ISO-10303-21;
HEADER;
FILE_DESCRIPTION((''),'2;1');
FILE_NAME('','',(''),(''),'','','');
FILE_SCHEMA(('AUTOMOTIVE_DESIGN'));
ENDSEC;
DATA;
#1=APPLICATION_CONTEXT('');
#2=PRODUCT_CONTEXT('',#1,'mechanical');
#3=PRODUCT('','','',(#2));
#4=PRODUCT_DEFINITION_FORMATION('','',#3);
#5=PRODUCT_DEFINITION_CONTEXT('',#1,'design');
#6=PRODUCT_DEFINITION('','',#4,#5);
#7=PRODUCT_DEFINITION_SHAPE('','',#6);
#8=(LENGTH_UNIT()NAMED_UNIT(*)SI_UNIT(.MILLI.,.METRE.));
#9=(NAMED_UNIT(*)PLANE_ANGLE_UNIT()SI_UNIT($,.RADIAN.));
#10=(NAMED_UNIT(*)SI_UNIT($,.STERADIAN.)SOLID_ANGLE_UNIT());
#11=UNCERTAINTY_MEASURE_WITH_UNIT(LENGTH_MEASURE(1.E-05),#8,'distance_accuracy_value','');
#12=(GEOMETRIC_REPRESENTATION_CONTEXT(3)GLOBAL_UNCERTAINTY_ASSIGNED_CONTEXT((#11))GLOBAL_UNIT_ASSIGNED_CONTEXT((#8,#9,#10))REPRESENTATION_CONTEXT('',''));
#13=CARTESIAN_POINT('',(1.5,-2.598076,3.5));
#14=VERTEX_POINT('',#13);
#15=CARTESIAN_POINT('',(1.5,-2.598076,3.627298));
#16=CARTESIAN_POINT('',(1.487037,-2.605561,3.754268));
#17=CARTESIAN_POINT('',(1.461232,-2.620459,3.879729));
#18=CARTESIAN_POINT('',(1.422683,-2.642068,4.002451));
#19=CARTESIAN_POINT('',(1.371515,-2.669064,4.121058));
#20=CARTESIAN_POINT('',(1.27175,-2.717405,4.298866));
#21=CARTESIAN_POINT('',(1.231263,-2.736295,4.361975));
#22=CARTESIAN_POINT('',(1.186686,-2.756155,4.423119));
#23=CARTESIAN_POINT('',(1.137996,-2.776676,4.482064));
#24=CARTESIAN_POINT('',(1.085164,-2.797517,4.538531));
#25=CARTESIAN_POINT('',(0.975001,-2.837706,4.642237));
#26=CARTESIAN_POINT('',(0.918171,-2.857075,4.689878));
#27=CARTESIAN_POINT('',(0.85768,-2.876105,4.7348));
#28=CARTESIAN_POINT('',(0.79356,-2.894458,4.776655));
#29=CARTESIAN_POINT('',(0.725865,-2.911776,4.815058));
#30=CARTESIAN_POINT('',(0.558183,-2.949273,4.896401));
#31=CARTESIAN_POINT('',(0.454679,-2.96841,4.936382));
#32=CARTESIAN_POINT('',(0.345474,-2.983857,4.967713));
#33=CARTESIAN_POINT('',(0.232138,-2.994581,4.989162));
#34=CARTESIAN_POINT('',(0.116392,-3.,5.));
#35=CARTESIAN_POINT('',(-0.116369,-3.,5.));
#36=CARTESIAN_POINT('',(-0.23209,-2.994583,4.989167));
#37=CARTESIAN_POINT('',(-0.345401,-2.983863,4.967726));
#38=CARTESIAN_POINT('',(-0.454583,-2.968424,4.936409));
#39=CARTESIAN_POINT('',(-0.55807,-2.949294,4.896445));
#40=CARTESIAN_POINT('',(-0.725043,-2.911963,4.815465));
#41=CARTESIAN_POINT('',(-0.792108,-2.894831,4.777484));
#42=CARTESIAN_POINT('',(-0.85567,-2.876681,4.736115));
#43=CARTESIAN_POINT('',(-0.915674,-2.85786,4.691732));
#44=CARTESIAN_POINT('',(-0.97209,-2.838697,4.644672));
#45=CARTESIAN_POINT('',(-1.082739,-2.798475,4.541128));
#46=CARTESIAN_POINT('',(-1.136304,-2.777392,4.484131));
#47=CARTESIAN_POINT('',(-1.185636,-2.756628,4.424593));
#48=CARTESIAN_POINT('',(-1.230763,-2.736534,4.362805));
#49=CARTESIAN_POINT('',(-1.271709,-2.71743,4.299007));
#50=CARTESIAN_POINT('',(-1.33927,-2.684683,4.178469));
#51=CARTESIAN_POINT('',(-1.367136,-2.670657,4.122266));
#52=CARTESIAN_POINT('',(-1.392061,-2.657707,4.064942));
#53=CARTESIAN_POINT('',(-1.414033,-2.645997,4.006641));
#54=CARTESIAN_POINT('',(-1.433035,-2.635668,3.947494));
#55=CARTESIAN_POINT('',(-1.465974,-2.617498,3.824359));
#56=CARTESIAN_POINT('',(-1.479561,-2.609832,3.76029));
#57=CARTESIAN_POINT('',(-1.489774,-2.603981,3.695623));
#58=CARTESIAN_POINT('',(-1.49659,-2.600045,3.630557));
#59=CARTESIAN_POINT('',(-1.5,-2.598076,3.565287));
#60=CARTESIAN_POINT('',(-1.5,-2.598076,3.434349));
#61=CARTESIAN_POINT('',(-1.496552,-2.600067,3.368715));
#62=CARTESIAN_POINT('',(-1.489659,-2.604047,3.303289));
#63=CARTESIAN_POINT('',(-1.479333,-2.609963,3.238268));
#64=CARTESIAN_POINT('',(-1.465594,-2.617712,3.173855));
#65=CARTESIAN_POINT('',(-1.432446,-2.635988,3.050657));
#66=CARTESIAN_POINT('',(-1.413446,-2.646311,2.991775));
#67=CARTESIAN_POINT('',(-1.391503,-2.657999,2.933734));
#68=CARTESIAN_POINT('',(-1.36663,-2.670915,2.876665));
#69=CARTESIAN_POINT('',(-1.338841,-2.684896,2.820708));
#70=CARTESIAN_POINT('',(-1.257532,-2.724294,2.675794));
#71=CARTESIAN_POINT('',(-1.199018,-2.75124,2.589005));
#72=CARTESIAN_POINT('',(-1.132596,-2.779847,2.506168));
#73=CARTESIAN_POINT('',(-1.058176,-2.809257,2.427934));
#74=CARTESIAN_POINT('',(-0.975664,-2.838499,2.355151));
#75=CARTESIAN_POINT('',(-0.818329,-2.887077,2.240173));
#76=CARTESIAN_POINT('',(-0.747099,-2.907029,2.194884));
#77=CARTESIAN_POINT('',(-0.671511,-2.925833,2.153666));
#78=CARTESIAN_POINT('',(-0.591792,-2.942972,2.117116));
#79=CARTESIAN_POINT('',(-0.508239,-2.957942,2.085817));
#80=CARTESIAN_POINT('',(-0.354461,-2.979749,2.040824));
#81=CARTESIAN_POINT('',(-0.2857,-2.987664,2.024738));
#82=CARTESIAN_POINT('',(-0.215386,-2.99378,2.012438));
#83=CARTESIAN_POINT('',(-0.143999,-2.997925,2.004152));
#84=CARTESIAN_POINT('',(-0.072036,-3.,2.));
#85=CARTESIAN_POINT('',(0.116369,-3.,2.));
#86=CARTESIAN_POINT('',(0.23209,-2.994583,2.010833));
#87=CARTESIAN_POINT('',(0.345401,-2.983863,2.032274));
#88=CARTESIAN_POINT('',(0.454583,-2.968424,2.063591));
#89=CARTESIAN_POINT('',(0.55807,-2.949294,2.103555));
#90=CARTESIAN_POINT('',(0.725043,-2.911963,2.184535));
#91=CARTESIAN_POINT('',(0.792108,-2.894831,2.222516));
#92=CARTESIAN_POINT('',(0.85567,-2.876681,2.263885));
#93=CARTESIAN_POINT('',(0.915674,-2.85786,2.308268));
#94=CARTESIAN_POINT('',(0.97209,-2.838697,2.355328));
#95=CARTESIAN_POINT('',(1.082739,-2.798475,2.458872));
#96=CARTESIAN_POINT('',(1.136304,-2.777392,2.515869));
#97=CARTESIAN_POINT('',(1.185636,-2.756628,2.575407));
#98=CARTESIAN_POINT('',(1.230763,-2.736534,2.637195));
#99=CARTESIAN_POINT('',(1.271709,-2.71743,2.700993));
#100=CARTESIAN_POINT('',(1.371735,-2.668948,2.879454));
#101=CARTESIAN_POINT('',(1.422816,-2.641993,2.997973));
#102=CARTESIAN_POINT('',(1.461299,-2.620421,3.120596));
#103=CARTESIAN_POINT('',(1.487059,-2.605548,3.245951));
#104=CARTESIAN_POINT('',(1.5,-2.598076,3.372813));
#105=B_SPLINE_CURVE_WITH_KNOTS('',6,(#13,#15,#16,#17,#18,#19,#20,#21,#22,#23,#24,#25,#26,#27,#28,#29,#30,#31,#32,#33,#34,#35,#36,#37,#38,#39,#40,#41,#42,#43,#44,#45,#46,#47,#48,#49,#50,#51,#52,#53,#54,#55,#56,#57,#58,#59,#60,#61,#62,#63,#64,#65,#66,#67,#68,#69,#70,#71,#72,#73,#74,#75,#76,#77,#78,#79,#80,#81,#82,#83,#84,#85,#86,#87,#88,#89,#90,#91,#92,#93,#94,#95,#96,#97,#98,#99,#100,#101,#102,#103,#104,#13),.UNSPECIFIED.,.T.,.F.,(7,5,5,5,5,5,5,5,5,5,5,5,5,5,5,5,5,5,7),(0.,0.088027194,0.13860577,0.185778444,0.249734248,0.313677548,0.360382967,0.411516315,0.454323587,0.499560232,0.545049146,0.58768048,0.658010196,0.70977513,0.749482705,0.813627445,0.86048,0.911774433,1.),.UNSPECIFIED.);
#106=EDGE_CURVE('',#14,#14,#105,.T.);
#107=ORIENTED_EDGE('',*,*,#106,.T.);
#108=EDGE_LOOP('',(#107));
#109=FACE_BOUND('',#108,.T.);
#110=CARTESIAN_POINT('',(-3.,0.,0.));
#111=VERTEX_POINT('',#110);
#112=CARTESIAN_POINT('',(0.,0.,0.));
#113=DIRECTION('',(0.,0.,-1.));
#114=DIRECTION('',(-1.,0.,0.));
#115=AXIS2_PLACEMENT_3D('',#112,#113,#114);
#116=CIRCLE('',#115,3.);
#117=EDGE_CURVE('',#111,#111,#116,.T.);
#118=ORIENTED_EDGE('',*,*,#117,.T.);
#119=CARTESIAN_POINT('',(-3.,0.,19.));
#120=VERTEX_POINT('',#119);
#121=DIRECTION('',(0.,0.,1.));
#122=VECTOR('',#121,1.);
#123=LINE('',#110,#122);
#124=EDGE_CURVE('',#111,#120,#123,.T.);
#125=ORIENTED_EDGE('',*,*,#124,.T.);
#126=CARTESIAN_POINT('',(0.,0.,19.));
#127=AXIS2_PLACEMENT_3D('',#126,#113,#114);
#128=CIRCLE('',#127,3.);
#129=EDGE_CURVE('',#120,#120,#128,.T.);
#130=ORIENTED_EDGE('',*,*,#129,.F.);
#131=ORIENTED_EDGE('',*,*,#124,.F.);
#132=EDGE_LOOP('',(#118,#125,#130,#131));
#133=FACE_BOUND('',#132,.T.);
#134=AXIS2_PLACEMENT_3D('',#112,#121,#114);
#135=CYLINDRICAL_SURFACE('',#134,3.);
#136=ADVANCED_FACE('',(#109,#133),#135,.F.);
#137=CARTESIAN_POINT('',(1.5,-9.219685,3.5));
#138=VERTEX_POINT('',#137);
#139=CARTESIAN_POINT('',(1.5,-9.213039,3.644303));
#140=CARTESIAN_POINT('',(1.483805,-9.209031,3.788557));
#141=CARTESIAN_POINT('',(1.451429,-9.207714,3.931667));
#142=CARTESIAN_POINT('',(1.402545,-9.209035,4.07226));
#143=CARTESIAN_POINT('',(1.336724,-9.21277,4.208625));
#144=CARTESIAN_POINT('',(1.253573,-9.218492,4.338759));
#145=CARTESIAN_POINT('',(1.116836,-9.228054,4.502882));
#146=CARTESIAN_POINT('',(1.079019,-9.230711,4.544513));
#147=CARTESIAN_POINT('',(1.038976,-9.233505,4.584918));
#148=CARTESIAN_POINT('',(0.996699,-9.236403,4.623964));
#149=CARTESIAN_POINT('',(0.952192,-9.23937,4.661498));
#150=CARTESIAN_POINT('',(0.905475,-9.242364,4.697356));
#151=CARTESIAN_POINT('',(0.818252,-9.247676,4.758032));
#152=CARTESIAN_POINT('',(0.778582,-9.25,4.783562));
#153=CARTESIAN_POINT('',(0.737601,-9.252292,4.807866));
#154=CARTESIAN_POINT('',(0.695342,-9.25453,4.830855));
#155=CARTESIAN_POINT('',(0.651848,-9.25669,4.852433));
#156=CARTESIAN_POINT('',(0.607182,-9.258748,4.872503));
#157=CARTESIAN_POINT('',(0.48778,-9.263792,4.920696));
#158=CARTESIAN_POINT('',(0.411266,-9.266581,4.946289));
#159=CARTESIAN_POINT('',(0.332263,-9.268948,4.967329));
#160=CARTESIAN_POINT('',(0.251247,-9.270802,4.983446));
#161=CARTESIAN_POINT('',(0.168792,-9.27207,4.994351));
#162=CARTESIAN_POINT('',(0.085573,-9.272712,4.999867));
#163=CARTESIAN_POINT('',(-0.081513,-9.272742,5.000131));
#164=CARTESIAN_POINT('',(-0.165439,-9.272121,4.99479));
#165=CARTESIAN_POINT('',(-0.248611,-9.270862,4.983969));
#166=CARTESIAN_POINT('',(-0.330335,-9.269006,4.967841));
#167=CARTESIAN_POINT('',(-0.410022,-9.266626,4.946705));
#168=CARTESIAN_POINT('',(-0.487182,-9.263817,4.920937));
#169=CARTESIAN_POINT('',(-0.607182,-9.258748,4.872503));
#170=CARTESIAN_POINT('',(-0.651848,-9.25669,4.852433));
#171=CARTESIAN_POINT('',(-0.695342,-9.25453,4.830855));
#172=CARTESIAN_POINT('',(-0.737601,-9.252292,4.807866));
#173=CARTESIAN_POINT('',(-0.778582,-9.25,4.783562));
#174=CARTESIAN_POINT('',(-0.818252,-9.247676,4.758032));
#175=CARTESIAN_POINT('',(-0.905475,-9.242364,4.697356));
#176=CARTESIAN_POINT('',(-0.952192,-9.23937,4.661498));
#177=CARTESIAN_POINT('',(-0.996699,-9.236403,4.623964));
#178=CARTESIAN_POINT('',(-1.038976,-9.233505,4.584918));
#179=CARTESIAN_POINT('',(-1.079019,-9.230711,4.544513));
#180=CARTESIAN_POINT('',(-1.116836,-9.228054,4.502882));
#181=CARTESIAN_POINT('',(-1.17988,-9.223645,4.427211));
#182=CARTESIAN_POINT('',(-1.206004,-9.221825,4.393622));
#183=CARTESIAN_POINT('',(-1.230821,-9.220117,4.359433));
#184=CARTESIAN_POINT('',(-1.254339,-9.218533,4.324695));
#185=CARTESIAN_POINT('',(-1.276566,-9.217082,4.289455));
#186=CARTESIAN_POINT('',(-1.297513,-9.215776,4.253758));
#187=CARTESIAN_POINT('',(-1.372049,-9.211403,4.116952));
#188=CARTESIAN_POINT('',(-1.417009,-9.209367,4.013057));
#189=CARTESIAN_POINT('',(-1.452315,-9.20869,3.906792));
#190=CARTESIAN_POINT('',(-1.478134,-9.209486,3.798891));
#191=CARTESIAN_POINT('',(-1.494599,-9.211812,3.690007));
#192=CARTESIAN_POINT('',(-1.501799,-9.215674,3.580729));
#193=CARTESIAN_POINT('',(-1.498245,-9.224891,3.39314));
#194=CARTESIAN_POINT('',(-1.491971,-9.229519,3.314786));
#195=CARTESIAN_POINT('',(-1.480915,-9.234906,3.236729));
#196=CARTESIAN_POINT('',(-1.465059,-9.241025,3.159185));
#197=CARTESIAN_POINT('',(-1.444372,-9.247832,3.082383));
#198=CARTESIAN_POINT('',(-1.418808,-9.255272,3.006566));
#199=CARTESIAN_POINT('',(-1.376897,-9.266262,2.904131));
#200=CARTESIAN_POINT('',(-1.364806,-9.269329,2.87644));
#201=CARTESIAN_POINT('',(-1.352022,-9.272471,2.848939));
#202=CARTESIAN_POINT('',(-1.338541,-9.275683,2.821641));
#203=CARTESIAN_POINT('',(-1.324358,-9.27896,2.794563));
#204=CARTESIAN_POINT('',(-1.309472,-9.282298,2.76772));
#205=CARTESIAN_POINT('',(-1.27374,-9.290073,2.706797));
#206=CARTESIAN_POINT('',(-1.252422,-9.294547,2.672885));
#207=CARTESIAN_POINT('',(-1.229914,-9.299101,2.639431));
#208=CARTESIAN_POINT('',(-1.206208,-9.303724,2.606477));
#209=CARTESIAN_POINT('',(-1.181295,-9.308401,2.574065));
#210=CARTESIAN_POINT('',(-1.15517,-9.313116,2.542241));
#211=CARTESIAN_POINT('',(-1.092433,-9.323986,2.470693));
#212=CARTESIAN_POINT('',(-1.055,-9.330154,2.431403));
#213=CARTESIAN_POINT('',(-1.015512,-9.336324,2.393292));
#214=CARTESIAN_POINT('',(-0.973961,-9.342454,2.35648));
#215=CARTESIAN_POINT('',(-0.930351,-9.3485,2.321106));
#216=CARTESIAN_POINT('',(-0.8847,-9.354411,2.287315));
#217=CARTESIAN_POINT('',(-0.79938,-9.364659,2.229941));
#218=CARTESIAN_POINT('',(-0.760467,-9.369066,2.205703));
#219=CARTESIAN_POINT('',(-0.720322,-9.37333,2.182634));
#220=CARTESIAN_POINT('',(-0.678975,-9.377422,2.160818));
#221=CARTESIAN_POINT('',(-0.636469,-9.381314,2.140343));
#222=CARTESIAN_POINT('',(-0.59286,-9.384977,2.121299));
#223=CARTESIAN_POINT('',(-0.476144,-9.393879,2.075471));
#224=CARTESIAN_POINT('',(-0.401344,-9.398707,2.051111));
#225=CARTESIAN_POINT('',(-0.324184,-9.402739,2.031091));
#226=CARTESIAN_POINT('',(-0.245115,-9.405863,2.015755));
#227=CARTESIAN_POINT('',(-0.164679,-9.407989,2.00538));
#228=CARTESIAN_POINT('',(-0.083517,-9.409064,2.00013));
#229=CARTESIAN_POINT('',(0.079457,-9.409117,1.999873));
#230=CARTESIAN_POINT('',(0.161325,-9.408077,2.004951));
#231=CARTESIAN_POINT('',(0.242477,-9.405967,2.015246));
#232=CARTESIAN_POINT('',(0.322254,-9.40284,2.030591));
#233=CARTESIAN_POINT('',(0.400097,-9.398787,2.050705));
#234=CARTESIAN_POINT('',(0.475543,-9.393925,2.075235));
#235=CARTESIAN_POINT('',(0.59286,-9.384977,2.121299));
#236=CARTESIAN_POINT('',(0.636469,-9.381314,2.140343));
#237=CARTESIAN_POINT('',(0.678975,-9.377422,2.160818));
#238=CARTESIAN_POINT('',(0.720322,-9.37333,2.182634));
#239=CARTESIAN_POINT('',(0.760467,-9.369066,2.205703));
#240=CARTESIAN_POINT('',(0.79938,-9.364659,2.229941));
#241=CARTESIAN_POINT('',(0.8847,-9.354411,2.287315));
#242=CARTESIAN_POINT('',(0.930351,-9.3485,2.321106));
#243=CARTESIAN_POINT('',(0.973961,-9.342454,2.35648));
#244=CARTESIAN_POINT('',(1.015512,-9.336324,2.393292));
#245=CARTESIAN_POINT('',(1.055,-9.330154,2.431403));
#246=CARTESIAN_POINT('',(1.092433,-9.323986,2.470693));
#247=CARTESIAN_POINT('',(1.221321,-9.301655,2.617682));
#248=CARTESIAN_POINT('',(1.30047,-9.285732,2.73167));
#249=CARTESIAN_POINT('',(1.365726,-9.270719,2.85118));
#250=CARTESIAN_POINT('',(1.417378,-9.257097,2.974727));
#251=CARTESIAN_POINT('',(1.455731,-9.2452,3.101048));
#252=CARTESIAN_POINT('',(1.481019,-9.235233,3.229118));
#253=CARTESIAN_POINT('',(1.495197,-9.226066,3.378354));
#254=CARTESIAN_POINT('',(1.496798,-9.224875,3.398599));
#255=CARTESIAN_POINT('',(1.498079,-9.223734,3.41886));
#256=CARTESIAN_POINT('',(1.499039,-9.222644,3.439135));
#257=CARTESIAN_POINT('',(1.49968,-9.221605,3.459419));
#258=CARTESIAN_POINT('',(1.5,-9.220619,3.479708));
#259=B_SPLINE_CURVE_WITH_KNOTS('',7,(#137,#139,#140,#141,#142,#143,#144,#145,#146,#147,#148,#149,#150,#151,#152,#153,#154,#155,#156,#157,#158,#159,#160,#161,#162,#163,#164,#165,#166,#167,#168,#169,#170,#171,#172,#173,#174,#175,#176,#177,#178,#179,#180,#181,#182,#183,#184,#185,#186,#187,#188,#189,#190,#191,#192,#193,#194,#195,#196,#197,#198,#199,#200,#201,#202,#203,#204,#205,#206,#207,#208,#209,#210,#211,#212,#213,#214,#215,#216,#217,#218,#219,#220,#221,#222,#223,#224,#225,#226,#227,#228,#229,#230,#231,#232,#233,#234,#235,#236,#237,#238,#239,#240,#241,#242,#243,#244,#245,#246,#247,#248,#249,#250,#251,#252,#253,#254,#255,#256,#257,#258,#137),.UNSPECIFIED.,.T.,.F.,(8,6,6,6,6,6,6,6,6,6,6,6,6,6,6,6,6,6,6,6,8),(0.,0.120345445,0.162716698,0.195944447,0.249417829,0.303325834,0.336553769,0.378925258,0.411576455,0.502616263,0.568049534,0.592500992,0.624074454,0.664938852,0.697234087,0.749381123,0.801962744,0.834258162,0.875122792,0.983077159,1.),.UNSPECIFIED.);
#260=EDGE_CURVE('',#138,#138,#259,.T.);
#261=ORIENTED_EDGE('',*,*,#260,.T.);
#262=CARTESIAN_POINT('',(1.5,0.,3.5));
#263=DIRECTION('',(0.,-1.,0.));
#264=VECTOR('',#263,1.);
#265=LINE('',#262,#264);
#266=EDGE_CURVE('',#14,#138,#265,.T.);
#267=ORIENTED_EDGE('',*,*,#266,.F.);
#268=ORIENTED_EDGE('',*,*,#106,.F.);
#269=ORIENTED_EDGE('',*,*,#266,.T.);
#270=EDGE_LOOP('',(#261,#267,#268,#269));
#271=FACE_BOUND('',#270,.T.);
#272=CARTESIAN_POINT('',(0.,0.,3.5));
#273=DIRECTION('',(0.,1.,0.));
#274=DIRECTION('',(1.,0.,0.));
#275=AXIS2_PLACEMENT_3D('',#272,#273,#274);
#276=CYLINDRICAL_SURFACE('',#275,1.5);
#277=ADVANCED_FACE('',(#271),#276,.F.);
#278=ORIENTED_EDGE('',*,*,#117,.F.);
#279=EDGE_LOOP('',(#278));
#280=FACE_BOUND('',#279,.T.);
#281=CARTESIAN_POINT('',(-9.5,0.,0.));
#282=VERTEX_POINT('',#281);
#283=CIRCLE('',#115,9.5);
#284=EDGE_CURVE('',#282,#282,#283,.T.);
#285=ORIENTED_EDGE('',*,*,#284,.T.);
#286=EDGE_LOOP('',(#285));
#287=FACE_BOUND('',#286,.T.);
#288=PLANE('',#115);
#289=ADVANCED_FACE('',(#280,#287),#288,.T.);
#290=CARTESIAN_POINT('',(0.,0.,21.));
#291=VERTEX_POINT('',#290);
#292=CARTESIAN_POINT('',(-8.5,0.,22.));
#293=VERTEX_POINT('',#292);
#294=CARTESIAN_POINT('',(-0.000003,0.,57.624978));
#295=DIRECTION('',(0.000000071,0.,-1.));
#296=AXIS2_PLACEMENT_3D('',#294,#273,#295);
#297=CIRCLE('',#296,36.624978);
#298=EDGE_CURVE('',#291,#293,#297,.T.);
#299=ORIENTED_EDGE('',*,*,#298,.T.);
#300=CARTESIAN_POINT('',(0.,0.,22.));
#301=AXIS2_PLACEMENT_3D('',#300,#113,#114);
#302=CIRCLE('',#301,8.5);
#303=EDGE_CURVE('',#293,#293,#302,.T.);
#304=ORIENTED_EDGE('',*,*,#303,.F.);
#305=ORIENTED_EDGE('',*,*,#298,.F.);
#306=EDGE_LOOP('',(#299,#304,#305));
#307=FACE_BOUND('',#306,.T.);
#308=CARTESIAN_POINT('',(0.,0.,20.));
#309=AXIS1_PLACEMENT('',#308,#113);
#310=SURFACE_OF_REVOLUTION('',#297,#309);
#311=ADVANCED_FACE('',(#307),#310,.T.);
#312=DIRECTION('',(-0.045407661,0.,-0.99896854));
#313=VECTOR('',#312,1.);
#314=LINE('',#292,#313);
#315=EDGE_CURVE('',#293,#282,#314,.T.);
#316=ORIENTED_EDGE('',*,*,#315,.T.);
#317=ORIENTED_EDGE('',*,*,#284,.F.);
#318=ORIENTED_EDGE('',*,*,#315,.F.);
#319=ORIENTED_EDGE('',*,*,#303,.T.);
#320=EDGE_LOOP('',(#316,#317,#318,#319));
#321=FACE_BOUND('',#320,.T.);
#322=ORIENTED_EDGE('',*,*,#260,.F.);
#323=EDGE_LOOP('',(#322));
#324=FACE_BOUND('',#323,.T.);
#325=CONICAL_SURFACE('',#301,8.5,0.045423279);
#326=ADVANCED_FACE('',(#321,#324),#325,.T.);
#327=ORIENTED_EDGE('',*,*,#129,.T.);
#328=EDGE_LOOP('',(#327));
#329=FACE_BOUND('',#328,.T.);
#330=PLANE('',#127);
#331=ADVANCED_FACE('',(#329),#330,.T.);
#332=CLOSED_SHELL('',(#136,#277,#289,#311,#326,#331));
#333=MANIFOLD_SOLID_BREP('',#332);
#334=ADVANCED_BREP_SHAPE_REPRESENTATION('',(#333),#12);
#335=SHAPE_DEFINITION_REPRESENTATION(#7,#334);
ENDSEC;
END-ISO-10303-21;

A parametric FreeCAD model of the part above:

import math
import FreeCAD as App
import Part
import Sketcher
Q = App.Units.Quantity

doc = App.newDocument("Part")
body = doc.addObject("PartDesign::Body", "Body")

sketch1 = doc.addObject("Sketcher::SketchObject", "Sketch")
body.addObject(sketch1)
sketch1.AttachmentSupport = (doc.XZ_Plane, [""])
sketch1.MapMode = "FlatFace"
sketch1.addGeometry([
    Part.LineSegment(App.Vector(-9.5, 0, 0), App.Vector(-3, 0, 0)),
    Part.LineSegment(App.Vector(-3, 0, 0), App.Vector(-3, 19, 0)),
    Part.LineSegment(App.Vector(-3, 19, 0), App.Vector(0, 19, 0)),
    Part.LineSegment(App.Vector(0, 19, 0), App.Vector(0, 21, 0)),
    Part.ArcOfCircle(Part.Circle(App.Vector(-0.000003, 57.624978, 0), App.Vector(0, 0, 1), 36.624978), math.radians(-103.419678), math.radians(-89.999996)),
    Part.LineSegment(App.Vector(-8.5, 22, 0), App.Vector(-9.5, 0, 0)),
], False)
sketch1.addConstraint([
    Sketcher.Constraint("Coincident", 0, 2, 1, 1),
    Sketcher.Constraint("Coincident", 1, 2, 2, 1),
    Sketcher.Constraint("Coincident", 2, 2, 3, 1),
    Sketcher.Constraint("Coincident", 3, 2, 4, 2),
    Sketcher.Constraint("Coincident", 4, 1, 5, 1),
    Sketcher.Constraint("Coincident", 5, 2, 0, 1),
    Sketcher.Constraint("Horizontal", 0),
    Sketcher.Constraint("Vertical", 1),
    Sketcher.Constraint("Horizontal", 2),
    Sketcher.Constraint("Vertical", 3),
    Sketcher.Constraint("PointOnObject", 0, 2, -1),
    Sketcher.Constraint("PointOnObject", 2, 2, -2),
    Sketcher.Constraint("DistanceX", 2, 1, 2, 2, Q("3 mm")),
    Sketcher.Constraint("DistanceY", 1, 1, 1, 2, Q("19 mm")),
    Sketcher.Constraint("DistanceY", 3, 1, 3, 2, Q("2 mm")),
    Sketcher.Constraint("DistanceX", 0, 1, 0, 2, Q("6.5 mm")),
    Sketcher.Constraint("DistanceY", -1, 1, 4, 1, Q("22 mm")),
    Sketcher.Constraint("DistanceX", 5, 2, 4, 1, Q("1 mm")),
    Sketcher.Constraint("Radius", 4, Q("36.624978 mm")),
])
revolution = doc.addObject("PartDesign::Revolution", "Revolution")
body.addObject(revolution)
revolution.Profile = sketch1
revolution.ReferenceAxis = (sketch1, ["V_Axis"])
revolution.Angle = 360

sketch2 = doc.addObject("Sketcher::SketchObject", "Sketch001")
body.addObject(sketch2)
sketch2.AttachmentSupport = (doc.XZ_Plane, [""])
sketch2.MapMode = "FlatFace"
sketch2.addGeometry(Part.Circle(App.Vector(0, 3.5, 0), App.Vector(0, 0, 1), 1.5), False)
sketch2.addConstraint([
    Sketcher.Constraint("PointOnObject", 0, 3, -2),
    Sketcher.Constraint("Diameter", 0, Q("3 mm")),
    Sketcher.Constraint("DistanceY", -1, 1, 0, 3, Q("3.5 mm")),
])
pocket1 = doc.addObject("PartDesign::Pocket", "Pocket")
body.addObject(pocket1)
pocket1.Profile = sketch2
pocket1.Type = "ThroughAll"
pocket1.Reversed = True

doc.recompute()
